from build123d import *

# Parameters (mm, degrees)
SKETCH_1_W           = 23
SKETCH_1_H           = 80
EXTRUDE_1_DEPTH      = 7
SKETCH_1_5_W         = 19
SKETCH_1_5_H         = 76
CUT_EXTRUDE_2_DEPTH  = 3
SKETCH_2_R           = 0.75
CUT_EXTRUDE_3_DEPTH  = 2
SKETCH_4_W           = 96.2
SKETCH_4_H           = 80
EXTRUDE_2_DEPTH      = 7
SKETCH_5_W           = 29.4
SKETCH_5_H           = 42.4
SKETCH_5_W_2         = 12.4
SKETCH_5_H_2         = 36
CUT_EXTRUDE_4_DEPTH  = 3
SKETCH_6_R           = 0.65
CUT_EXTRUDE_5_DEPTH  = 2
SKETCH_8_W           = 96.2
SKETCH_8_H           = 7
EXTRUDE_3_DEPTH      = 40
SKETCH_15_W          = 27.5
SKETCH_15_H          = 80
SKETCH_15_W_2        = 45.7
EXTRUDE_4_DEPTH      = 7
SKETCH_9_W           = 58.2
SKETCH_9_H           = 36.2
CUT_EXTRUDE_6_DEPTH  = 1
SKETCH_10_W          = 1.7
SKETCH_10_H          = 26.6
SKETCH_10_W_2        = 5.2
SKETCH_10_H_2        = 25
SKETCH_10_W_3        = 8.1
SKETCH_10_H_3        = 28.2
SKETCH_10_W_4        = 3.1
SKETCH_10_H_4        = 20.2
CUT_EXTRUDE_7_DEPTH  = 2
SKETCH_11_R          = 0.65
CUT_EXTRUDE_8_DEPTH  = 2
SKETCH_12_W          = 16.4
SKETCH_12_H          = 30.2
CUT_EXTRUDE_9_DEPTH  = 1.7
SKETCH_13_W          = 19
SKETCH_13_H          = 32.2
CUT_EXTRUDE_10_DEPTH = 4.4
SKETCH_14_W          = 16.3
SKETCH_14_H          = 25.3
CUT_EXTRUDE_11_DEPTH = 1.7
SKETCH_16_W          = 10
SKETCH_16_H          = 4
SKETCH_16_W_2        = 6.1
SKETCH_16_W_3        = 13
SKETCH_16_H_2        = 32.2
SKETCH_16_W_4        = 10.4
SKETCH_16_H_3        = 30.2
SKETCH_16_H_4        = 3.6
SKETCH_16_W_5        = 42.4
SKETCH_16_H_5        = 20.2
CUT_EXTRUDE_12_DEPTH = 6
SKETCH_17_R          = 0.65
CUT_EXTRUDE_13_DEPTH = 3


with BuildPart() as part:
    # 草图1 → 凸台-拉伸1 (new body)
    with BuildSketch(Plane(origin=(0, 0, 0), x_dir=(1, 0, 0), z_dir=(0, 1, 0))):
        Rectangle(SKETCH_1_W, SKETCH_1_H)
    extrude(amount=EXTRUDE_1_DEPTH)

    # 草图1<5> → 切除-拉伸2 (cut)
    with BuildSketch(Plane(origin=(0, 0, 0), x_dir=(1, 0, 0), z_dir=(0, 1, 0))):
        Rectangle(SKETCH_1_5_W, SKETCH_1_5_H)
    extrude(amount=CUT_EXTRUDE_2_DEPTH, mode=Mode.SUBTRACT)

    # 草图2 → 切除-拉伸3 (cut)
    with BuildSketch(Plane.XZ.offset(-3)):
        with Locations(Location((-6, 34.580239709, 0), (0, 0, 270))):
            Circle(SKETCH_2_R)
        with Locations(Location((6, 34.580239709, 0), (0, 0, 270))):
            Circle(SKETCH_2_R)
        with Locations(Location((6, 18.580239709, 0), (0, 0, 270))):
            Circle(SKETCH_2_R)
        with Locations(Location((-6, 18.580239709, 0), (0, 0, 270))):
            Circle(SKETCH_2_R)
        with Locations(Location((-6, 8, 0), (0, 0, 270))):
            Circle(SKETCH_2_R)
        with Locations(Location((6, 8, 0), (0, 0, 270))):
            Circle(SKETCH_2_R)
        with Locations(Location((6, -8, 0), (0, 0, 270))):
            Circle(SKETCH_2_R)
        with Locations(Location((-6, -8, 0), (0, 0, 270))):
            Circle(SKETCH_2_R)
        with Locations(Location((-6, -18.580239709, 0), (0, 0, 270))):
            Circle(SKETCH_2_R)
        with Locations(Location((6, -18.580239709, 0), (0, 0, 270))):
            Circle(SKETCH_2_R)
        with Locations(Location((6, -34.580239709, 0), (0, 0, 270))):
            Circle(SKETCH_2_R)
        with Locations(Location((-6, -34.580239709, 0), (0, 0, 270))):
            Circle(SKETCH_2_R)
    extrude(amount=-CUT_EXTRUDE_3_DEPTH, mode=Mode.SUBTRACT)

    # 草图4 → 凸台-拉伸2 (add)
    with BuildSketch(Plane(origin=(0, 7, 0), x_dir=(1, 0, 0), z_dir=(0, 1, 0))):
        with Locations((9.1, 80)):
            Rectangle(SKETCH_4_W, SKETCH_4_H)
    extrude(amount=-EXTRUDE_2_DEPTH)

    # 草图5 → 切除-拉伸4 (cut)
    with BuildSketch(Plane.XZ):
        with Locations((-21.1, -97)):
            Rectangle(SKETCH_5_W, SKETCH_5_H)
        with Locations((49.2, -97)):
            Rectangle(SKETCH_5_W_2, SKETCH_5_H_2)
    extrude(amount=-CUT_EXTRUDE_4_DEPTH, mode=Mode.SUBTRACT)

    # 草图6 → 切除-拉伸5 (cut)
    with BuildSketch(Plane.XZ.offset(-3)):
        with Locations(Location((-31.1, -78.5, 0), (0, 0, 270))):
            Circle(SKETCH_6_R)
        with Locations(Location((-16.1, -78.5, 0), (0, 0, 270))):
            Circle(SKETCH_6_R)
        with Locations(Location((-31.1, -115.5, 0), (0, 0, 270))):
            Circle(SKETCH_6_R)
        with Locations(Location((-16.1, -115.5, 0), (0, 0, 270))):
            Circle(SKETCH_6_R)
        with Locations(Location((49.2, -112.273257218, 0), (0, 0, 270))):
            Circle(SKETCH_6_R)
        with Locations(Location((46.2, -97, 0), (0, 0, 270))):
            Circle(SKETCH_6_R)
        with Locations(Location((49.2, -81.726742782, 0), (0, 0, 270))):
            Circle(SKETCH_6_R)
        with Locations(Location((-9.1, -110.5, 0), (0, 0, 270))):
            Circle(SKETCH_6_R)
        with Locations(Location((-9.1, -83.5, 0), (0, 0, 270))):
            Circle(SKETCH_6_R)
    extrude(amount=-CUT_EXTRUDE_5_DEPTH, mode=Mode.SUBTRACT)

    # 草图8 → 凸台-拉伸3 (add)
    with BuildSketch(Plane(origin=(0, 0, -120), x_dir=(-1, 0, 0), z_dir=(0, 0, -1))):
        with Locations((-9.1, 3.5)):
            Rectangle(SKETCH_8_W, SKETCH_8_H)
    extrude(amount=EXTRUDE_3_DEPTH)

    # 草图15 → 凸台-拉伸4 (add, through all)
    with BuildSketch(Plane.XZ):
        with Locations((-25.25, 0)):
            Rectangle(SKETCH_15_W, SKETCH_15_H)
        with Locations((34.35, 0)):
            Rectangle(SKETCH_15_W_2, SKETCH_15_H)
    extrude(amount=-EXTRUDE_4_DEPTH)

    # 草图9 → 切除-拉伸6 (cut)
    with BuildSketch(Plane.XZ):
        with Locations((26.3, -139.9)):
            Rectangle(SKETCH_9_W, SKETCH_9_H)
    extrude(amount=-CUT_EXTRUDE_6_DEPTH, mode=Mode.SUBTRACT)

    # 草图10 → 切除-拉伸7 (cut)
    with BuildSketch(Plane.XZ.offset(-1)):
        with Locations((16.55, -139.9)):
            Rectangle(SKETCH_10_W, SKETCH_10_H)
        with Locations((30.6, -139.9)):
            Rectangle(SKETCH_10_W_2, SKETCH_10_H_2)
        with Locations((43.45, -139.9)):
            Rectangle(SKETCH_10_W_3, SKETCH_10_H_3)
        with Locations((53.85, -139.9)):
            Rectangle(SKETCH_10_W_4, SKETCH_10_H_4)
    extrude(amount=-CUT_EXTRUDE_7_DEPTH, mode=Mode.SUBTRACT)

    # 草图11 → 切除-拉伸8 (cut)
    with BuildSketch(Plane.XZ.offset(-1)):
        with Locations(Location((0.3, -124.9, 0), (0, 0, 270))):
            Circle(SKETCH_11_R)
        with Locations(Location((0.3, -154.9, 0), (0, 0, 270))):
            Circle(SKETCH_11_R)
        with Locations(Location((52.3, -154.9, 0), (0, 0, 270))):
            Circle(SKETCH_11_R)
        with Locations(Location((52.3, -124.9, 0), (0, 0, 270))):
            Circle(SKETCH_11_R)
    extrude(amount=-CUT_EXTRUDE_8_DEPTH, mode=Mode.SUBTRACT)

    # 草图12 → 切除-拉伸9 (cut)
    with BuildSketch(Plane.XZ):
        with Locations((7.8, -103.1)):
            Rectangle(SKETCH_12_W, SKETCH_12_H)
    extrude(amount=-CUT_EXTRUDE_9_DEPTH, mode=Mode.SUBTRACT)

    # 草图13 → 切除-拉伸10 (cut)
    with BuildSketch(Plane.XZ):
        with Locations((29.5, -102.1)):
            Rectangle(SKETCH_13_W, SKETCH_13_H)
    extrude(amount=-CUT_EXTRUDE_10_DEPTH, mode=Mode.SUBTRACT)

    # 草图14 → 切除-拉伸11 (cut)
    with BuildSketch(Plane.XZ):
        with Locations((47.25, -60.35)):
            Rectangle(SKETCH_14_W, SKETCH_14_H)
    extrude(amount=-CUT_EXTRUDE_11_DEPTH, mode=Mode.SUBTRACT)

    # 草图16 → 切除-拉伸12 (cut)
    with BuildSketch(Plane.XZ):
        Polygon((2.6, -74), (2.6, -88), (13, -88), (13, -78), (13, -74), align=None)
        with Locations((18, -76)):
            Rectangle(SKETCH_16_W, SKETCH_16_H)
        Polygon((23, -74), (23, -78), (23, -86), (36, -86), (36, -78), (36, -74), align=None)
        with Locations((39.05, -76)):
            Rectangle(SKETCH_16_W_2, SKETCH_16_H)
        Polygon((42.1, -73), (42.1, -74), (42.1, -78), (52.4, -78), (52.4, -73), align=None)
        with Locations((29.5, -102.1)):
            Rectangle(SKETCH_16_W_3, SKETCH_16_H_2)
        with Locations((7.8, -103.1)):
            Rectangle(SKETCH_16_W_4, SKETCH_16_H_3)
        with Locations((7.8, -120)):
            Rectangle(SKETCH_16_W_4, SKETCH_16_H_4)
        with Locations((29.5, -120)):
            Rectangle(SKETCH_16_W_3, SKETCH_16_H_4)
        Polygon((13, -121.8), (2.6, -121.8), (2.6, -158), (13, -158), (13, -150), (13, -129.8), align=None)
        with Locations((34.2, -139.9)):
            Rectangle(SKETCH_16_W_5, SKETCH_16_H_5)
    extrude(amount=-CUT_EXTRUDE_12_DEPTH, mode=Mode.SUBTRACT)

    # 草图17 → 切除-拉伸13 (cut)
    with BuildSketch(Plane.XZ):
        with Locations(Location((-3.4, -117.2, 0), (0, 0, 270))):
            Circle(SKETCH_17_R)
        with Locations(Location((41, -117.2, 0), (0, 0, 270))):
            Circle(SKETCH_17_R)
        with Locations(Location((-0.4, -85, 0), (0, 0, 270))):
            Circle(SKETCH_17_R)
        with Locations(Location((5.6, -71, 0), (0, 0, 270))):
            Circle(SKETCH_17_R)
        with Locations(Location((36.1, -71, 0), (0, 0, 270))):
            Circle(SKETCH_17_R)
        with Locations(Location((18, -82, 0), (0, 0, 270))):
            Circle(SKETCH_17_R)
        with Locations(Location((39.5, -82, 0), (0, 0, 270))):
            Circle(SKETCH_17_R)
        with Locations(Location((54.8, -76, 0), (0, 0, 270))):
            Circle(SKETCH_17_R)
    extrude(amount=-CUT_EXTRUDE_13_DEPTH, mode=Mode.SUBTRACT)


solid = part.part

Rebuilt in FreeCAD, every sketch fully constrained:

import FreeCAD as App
import Part
import Sketcher
from FreeCAD import Vector


def add_polygon(sketch, points):
    """Adds a closed chain of lines whose ends are joined by coincident constraints."""
    first, n = sketch.GeometryCount, len(points)
    for a, b in zip(points, points[1:] + points[:1]):
        sketch.addGeometry(Part.LineSegment(App.Vector(*a, 0), App.Vector(*b, 0)), False)
    for i in range(n):
        sketch.addConstraint(Sketcher.Constraint("Coincident", first + i, 2, first + (i + 1) % n, 1))

doc = App.newDocument("Part")
body = doc.addObject("PartDesign::Body", "Body")

# Sketch on XZ plane
sketch1 = doc.addObject("Sketcher::SketchObject", "Sketch")
body.addObject(sketch1)
sketch1.AttachmentSupport = (doc.XZ_Plane, [""])
sketch1.MapMode = "FlatFace"
add_polygon(sketch1, [(-12, -40), (-12, 40), (12, 40), (12, -40)])  # lines 0-3
sketch1.addConstraint(Sketcher.Constraint("Vertical", 0))
sketch1.addConstraint(Sketcher.Constraint("Horizontal", 1))
sketch1.addConstraint(Sketcher.Constraint("Vertical", 2))
sketch1.addConstraint(Sketcher.Constraint("Horizontal", 3))
sketch1.addConstraint(Sketcher.Constraint("Symmetric", 0, 2, 2, 2, -1, 1))
sketch1.addConstraint(Sketcher.Constraint("DistanceX", 1, 1, 1, 2, 23.0))
sketch1.addConstraint(Sketcher.Constraint("DistanceY", 0, 1, 0, 2, 80.0))
pad1 = doc.addObject("PartDesign::Pad", "Pad")
body.addObject(pad1)
pad1.Profile = sketch1
pad1.Length = 7
pad1.Reversed = True

# Sketch on XZ plane
sketch2 = doc.addObject("Sketcher::SketchObject", "Sketch001")
body.addObject(sketch2)
sketch2.AttachmentSupport = (doc.XZ_Plane, [""])
sketch2.MapMode = "FlatFace"
add_polygon(sketch2, [(-10, -38), (-10, 38), (10, 38), (10, -38)])  # lines 0-3
sketch2.addConstraint(Sketcher.Constraint("Vertical", 0))
sketch2.addConstraint(Sketcher.Constraint("Horizontal", 1))
sketch2.addConstraint(Sketcher.Constraint("Vertical", 2))
sketch2.addConstraint(Sketcher.Constraint("Horizontal", 3))
sketch2.addConstraint(Sketcher.Constraint("Symmetric", 0, 2, 2, 2, -1, 1))
sketch2.addConstraint(Sketcher.Constraint("DistanceX", 1, 1, 1, 2, 19.0))
sketch2.addConstraint(Sketcher.Constraint("DistanceY", 0, 1, 0, 2, 76.0))
pocket1 = doc.addObject("PartDesign::Pocket", "Pocket")
body.addObject(pocket1)
pocket1.Profile = sketch2
pocket1.Length = 3

# Sketch on XZ plane
sketch3 = doc.addObject("Sketcher::SketchObject", "Sketch002")
body.addObject(sketch3)
sketch3.AttachmentSupport = (doc.XZ_Plane, [""])
sketch3.MapMode = "FlatFace"
sketch3.AttachmentOffset = App.Placement(Vector(0, 0, -3), App.Rotation())
sketch3.addGeometry(Part.Circle(Vector(-6, 34.6, 0), Vector(0, 0, 1), 0.8), False)
sketch3.addGeometry(Part.Circle(Vector(6, 34.6, 0), Vector(0, 0, 1), 0.8), False)
sketch3.addGeometry(Part.Circle(Vector(6, 18.6, 0), Vector(0, 0, 1), 0.8), False)
sketch3.addGeometry(Part.Circle(Vector(-6, 18.6, 0), Vector(0, 0, 1), 0.8), False)
sketch3.addGeometry(Part.Circle(Vector(-6, 8, 0), Vector(0, 0, 1), 0.8), False)
sketch3.addGeometry(Part.Circle(Vector(6, 8, 0), Vector(0, 0, 1), 0.8), False)
sketch3.addGeometry(Part.Circle(Vector(6, -8, 0), Vector(0, 0, 1), 0.8), False)
sketch3.addGeometry(Part.Circle(Vector(-6, -8, 0), Vector(0, 0, 1), 0.8), False)
sketch3.addGeometry(Part.Circle(Vector(-6, -18.6, 0), Vector(0, 0, 1), 0.8), False)
sketch3.addGeometry(Part.Circle(Vector(6, -18.6, 0), Vector(0, 0, 1), 0.8), False)
sketch3.addGeometry(Part.Circle(Vector(6, -34.6, 0), Vector(0, 0, 1), 0.8), False)
sketch3.addGeometry(Part.Circle(Vector(-6, -34.6, 0), Vector(0, 0, 1), 0.8), False)
sketch3.addConstraint(Sketcher.Constraint("Equal", 0, 1))
sketch3.addConstraint(Sketcher.Constraint("Equal", 1, 2))
sketch3.addConstraint(Sketcher.Constraint("Equal", 2, 3))
sketch3.addConstraint(Sketcher.Constraint("Equal", 3, 4))
sketch3.addConstraint(Sketcher.Constraint("Equal", 4, 5))
sketch3.addConstraint(Sketcher.Constraint("Equal", 5, 6))
sketch3.addConstraint(Sketcher.Constraint("Equal", 6, 7))
sketch3.addConstraint(Sketcher.Constraint("Equal", 7, 8))
sketch3.addConstraint(Sketcher.Constraint("Equal", 8, 9))
sketch3.addConstraint(Sketcher.Constraint("Equal", 9, 10))
sketch3.addConstraint(Sketcher.Constraint("Equal", 10, 11))
sketch3.addConstraint(Sketcher.Constraint("Symmetric", 4, 3, 6, 3, -1, 1))
sketch3.addConstraint(Sketcher.Constraint("Symmetric", 5, 3, 7, 3, -1, 1))
sketch3.addConstraint(Sketcher.Constraint("Symmetric", 2, 3, 8, 3, -1, 1))
sketch3.addConstraint(Sketcher.Constraint("Symmetric", 3, 3, 9, 3, -1, 1))
sketch3.addConstraint(Sketcher.Constraint("Symmetric", 0, 3, 10, 3, -1, 1))
sketch3.addConstraint(Sketcher.Constraint("Symmetric", 1, 3, 11, 3, -1, 1))
sketch3.addConstraint(Sketcher.Constraint("Symmetric", 0, 3, 1, 3, -2))
sketch3.addConstraint(Sketcher.Constraint("Symmetric", 2, 3, 3, 3, -2))
sketch3.addConstraint(Sketcher.Constraint("Symmetric", 4, 3, 5, 3, -2))
sketch3.addConstraint(Sketcher.Constraint("Vertical", 1, 3, 2, 3))
sketch3.addConstraint(Sketcher.Constraint("Vertical", 3, 3, 4, 3))
sketch3.addConstraint(Sketcher.Constraint("Diameter", 0, 1.5))
sketch3.addConstraint(Sketcher.Constraint("DistanceX", 0, 3, -1, 1, 6.0))
sketch3.addConstraint(Sketcher.Constraint("DistanceY", -1, 1, 4, 3, 8.0))
sketch3.addConstraint(Sketcher.Constraint("DistanceY", 2, 3, 1, 3, 16.0))
sketch3.addConstraint(Sketcher.Constraint("DistanceY", -1, 1, 0, 3, 34.58024))
pocket2 = doc.addObject("PartDesign::Pocket", "Pocket001")
body.addObject(pocket2)
pocket2.Profile = sketch3
pocket2.Length = 2

# Sketch on XZ plane
sketch4 = doc.addObject("Sketcher::SketchObject", "Sketch003")
body.addObject(sketch4)
sketch4.AttachmentSupport = (doc.XZ_Plane, [""])
sketch4.MapMode = "FlatFace"
sketch4.AttachmentOffset = App.Placement(Vector(0, 0, -7), App.Rotation())
add_polygon(sketch4, [(-39, -120), (-39, -40), (57, -40), (57, -120)])  # lines 0-3
sketch4.addConstraint(Sketcher.Constraint("Vertical", 0))
sketch4.addConstraint(Sketcher.Constraint("Horizontal", 1))
sketch4.addConstraint(Sketcher.Constraint("Vertical", 2))
sketch4.addConstraint(Sketcher.Constraint("Horizontal", 3))
sketch4.addConstraint(Sketcher.Constraint("DistanceY", 0, 1, 0, 2, 80.0))
sketch4.addConstraint(Sketcher.Constraint("DistanceX", 1, 1, 1, 2, 96.2))
sketch4.addConstraint(Sketcher.Constraint("DistanceX", 0, 2, -1, 1, 39.0))
sketch4.addConstraint(Sketcher.Constraint("DistanceY", 0, 2, -1, 1, 40.0))
pad2 = doc.addObject("PartDesign::Pad", "Pad001")
body.addObject(pad2)
pad2.Profile = sketch4
pad2.Length = 7

# Sketch on XZ plane
sketch5 = doc.addObject("Sketcher::SketchObject", "Sketch004")
body.addObject(sketch5)
sketch5.AttachmentSupport = (doc.XZ_Plane, [""])
sketch5.MapMode = "FlatFace"
add_polygon(sketch5, [(-36, -76), (-36, -118), (-6, -118), (-6, -76)])  # lines 0-3
add_polygon(sketch5, [(43, -79), (43, -115), (55, -115), (55, -79)])  # lines 4-7
sketch5.addConstraint(Sketcher.Constraint("Vertical", 0))
sketch5.addConstraint(Sketcher.Constraint("Horizontal", 1))
sketch5.addConstraint(Sketcher.Constraint("Vertical", 2))
sketch5.addConstraint(Sketcher.Constraint("Horizontal", 3))
sketch5.addConstraint(Sketcher.Constraint("Vertical", 4))
sketch5.addConstraint(Sketcher.Constraint("Horizontal", 5))
sketch5.addConstraint(Sketcher.Constraint("Vertical", 6))
sketch5.addConstraint(Sketcher.Constraint("Horizontal", 7))
sketch5.addConstraint(Sketcher.Constraint("DistanceY", 4, 2, 4, 1, 36.0))
sketch5.addConstraint(Sketcher.Constraint("DistanceX", 1, 1, 1, 2, 29.4))
sketch5.addConstraint(Sketcher.Constraint("DistanceX", 5, 1, 5, 2, 12.4))
sketch5.addConstraint(Sketcher.Constraint("DistanceY", 0, 2, 0, 1, 42.4))
sketch5.addConstraint(Sketcher.Constraint("DistanceX", -1, 1, 4, 2, 43.0))
sketch5.addConstraint(Sketcher.Constraint("DistanceY", 4, 2, -1, 1, 115.0))
sketch5.addConstraint(Sketcher.Constraint("DistanceX", 0, 2, -1, 1, 35.8))
sketch5.addConstraint(Sketcher.Constraint("DistanceY", 0, 2, -1, 1, 118.2))
pocket3 = doc.addObject("PartDesign::Pocket", "Pocket002")
body.addObject(pocket3)
pocket3.Profile = sketch5
pocket3.Length = 3

# Sketch on XZ plane
sketch6 = doc.addObject("Sketcher::SketchObject", "Sketch005")
body.addObject(sketch6)
sketch6.AttachmentSupport = (doc.XZ_Plane, [""])
sketch6.MapMode = "FlatFace"
sketch6.AttachmentOffset = App.Placement(Vector(0, 0, -3), App.Rotation())
sketch6.addGeometry(Part.Circle(Vector(-31.1, -78.5, 0), Vector(0, 0, 1), 0.7), False)
sketch6.addGeometry(Part.Circle(Vector(-16.1, -78.5, 0), Vector(0, 0, 1), 0.7), False)
sketch6.addGeometry(Part.Circle(Vector(-31.1, -115.5, 0), Vector(0, 0, 1), 0.7), False)
sketch6.addGeometry(Part.Circle(Vector(-16.1, -115.5, 0), Vector(0, 0, 1), 0.7), False)
sketch6.addGeometry(Part.Circle(Vector(49.2, -112.3, 0), Vector(0, 0, 1), 0.7), False)
sketch6.addGeometry(Part.Circle(Vector(46.2, -97, 0), Vector(0, 0, 1), 0.7), False)
sketch6.addGeometry(Part.Circle(Vector(49.2, -81.7, 0), Vector(0, 0, 1), 0.7), False)
sketch6.addGeometry(Part.Circle(Vector(-9.1, -110.5, 0), Vector(0, 0, 1), 0.7), False)
sketch6.addGeometry(Part.Circle(Vector(-9.1, -83.5, 0), Vector(0, 0, 1), 0.7), False)
sketch6.addConstraint(Sketcher.Constraint("Equal", 0, 1))
sketch6.addConstraint(Sketcher.Constraint("Equal", 1, 2))
sketch6.addConstraint(Sketcher.Constraint("Equal", 2, 3))
sketch6.addConstraint(Sketcher.Constraint("Equal", 3, 4))
sketch6.addConstraint(Sketcher.Constraint("Equal", 4, 5))
sketch6.addConstraint(Sketcher.Constraint("Equal", 5, 6))
sketch6.addConstraint(Sketcher.Constraint("Equal", 6, 7))
sketch6.addConstraint(Sketcher.Constraint("Equal", 7, 8))
sketch6.addConstraint(Sketcher.Constraint("Horizontal", 0, 3, 1, 3))
sketch6.addConstraint(Sketcher.Constraint("Horizontal", 2, 3, 3, 3))
sketch6.addConstraint(Sketcher.Constraint("Vertical", 0, 3, 2, 3))
sketch6.addConstraint(Sketcher.Constraint("Vertical", 1, 3, 3, 3))
sketch6.addConstraint(Sketcher.Constraint("Vertical", 4, 3, 6, 3))
sketch6.addConstraint(Sketcher.Constraint("Vertical", 7, 3, 8, 3))
sketch6.addConstraint(Sketcher.Constraint("Diameter", 0, 1.3))
sketch6.addConstraint(Sketcher.Constraint("DistanceY", 5, 3, -1, 1, 97.0))
sketch6.addConstraint(Sketcher.Constraint("DistanceX", 0, 3, 1, 3, 15.0))
sketch6.addConstraint(Sketcher.Constraint("DistanceY", 2, 3, 0, 3, 37.0))
sketch6.addConstraint(Sketcher.Constraint("DistanceX", 5, 3, 4, 3, 3.0))
sketch6.addConstraint(Sketcher.Constraint("DistanceX", 3, 3, 7, 3, 7.0))
sketch6.addConstraint(Sketcher.Constraint("DistanceY", 3, 3, 7, 3, 5.0))
sketch6.addConstraint(Sketcher.Constraint("DistanceY", 8, 3, 1, 3, 5.0))
sketch6.addConstraint(Sketcher.Constraint("DistanceX", 0, 3, -1, 1, 31.1))
sketch6.addConstraint(Sketcher.Constraint("DistanceY", 0, 3, -1, 1, 78.5))
sketch6.addConstraint(Sketcher.Constraint("DistanceX", -1, 1, 4, 3, 49.2))
sketch6.addConstraint(Sketcher.Constraint("DistanceY", 4, 3, -1, 1, 112.273257))
sketch6.addConstraint(Sketcher.Constraint("DistanceY", 6, 3, -1, 1, 81.726743))
pocket4 = doc.addObject("PartDesign::Pocket", "Pocket003")
body.addObject(pocket4)
pocket4.Profile = sketch6
pocket4.Length = 2

# Sketch on XY plane
sketch7 = doc.addObject("Sketcher::SketchObject", "Sketch006")
body.addObject(sketch7)
sketch7.AttachmentSupport = (doc.XY_Plane, [""])
sketch7.MapMode = "FlatFace"
sketch7.AttachmentOffset = App.Placement(Vector(0, 0, -120), App.Rotation())
add_polygon(sketch7, [(57, 7), (57, 0), (-39, 0), (-39, 7)])  # lines 0-3
sketch7.addConstraint(Sketcher.Constraint("Vertical", 0))
sketch7.addConstraint(Sketcher.Constraint("Horizontal", 1))
sketch7.addConstraint(Sketcher.Constraint("Vertical", 2))
sketch7.addConstraint(Sketcher.Constraint("Horizontal", 3))
sketch7.addConstraint(Sketcher.Constraint("PointOnObject", 0, 2, -1))
sketch7.addConstraint(Sketcher.Constraint("DistanceY", 0, 2, 0, 1, 7.0))
sketch7.addConstraint(Sketcher.Constraint("DistanceX", 1, 2, 1, 1, 96.2))
sketch7.addConstraint(Sketcher.Constraint("DistanceX", 1, 2, -1, 1, 39.0))
pad3 = doc.addObject("PartDesign::Pad", "Pad002")
body.addObject(pad3)
pad3.Profile = sketch7
pad3.Length = 40
pad3.Reversed = True

# Sketch on XZ plane
sketch8 = doc.addObject("Sketcher::SketchObject", "Sketch007")
body.addObject(sketch8)
sketch8.AttachmentSupport = (doc.XZ_Plane, [""])
sketch8.MapMode = "FlatFace"
add_polygon(sketch8, [(-39, 40), (-39, -40), (-12, -40), (-12, 40)])  # lines 0-3
add_polygon(sketch8, [(12, 40), (12, -40), (57, -40), (57, 40)])  # lines 4-7
sketch8.addConstraint(Sketcher.Constraint("Vertical", 0))
sketch8.addConstraint(Sketcher.Constraint("Horizontal", 1))
sketch8.addConstraint(Sketcher.Constraint("Vertical", 2))
sketch8.addConstraint(Sketcher.Constraint("Horizontal", 3))
sketch8.addConstraint(Sketcher.Constraint("Vertical", 4))
sketch8.addConstraint(Sketcher.Constraint("Horizontal", 5))
sketch8.addConstraint(Sketcher.Constraint("Vertical", 6))
sketch8.addConstraint(Sketcher.Constraint("Horizontal", 7))
sketch8.addConstraint(Sketcher.Constraint("Symmetric", 2, 2, 4, 2, -1, 1))
sketch8.addConstraint(Sketcher.Constraint("Horizontal", 1, 2, 4, 2))
sketch8.addConstraint(Sketcher.Constraint("Horizontal", 3, 2, 6, 2))
sketch8.addConstraint(Sketcher.Constraint("DistanceY", 0, 2, 0, 1, 80.0))
sketch8.addConstraint(Sketcher.Constraint("DistanceX", 1, 1, 1, 2, 27.5))
sketch8.addConstraint(Sketcher.Constraint("DistanceX", 5, 1, 5, 2, 45.7))
sketch8.addConstraint(Sketcher.Constraint("DistanceX", 0, 2, -1, 1, 39.0))
pad4 = doc.addObject("PartDesign::Pad", "Pad003")
body.addObject(pad4)
pad4.Profile = sketch8
pad4.Length = 7
pad4.Reversed = True

# Sketch on XZ plane
sketch9 = doc.addObject("Sketcher::SketchObject", "Sketch008")
body.addObject(sketch9)
sketch9.AttachmentSupport = (doc.XZ_Plane, [""])
sketch9.MapMode = "FlatFace"
add_polygon(sketch9, [(-3, -122), (-3, -158), (55, -158), (55, -122)])  # lines 0-3
sketch9.addConstraint(Sketcher.Constraint("Vertical", 0))
sketch9.addConstraint(Sketcher.Constraint("Horizontal", 1))
sketch9.addConstraint(Sketcher.Constraint("Vertical", 2))
sketch9.addConstraint(Sketcher.Constraint("Horizontal", 3))
sketch9.addConstraint(Sketcher.Constraint("DistanceX", 1, 1, 1, 2, 58.2))
sketch9.addConstraint(Sketcher.Constraint("DistanceY", 0, 2, 0, 1, 36.2))
sketch9.addConstraint(Sketcher.Constraint("DistanceY", 0, 2, -1, 1, 158.0))
sketch9.addConstraint(Sketcher.Constraint("DistanceX", 0, 2, -1, 1, 2.8))
pocket5 = doc.addObject("PartDesign::Pocket", "Pocket004")
body.addObject(pocket5)
pocket5.Profile = sketch9
pocket5.Length = 1

# Sketch on XZ plane
sketch10 = doc.addObject("Sketcher::SketchObject", "Sketch009")
body.addObject(sketch10)
sketch10.AttachmentSupport = (doc.XZ_Plane, [""])
sketch10.MapMode = "FlatFace"
sketch10.AttachmentOffset = App.Placement(Vector(0, 0, -1), App.Rotation())
add_polygon(sketch10, [(15.7, -126.6), (15.7, -153.2), (17.4, -153.2), (17.4, -126.6)])  # lines 0-3
add_polygon(sketch10, [(28, -127.4), (28, -152.4), (33.2, -152.4), (33.2, -127.4)])  # lines 4-7
add_polygon(sketch10, [(39.4, -125.8), (39.4, -154), (47.5, -154), (47.5, -125.8)])  # lines 8-11
add_polygon(sketch10, [(52.3, -129.8), (52.3, -150), (55.4, -150), (55.4, -129.8)])  # lines 12-15
sketch10.addConstraint(Sketcher.Constraint("Vertical", 0))
sketch10.addConstraint(Sketcher.Constraint("Horizontal", 1))
sketch10.addConstraint(Sketcher.Constraint("Vertical", 2))
sketch10.addConstraint(Sketcher.Constraint("Horizontal", 3))
sketch10.addConstraint(Sketcher.Constraint("Vertical", 4))
sketch10.addConstraint(Sketcher.Constraint("Horizontal", 5))
sketch10.addConstraint(Sketcher.Constraint("Vertical", 6))
sketch10.addConstraint(Sketcher.Constraint("Horizontal", 7))
sketch10.addConstraint(Sketcher.Constraint("Vertical", 8))
sketch10.addConstraint(Sketcher.Constraint("Horizontal", 9))
sketch10.addConstraint(Sketcher.Constraint("Vertical", 10))
sketch10.addConstraint(Sketcher.Constraint("Horizontal", 11))
sketch10.addConstraint(Sketcher.Constraint("Vertical", 12))
sketch10.addConstraint(Sketcher.Constraint("Horizontal", 13))
sketch10.addConstraint(Sketcher.Constraint("Vertical", 14))
sketch10.addConstraint(Sketcher.Constraint("Horizontal", 15))
sketch10.addConstraint(Sketcher.Constraint("DistanceY", 4, 2, 4, 1, 25.0))
sketch10.addConstraint(Sketcher.Constraint("DistanceX", 1, 1, 1, 2, 1.7))
sketch10.addConstraint(Sketcher.Constraint("DistanceX", 5, 1, 5, 2, 5.2))
sketch10.addConstraint(Sketcher.Constraint("DistanceX", 9, 1, 9, 2, 8.1))
sketch10.addConstraint(Sketcher.Constraint("DistanceX", 13, 1, 13, 2, 3.1))
sketch10.addConstraint(Sketcher.Constraint("DistanceY", 0, 2, 0, 1, 26.6))
sketch10.addConstraint(Sketcher.Constraint("DistanceY", 8, 2, 8, 1, 28.2))
sketch10.addConstraint(Sketcher.Constraint("DistanceY", 12, 2, 12, 1, 20.2))
sketch10.addConstraint(Sketcher.Constraint("DistanceX", -1, 1, 4, 2, 28.0))
sketch10.addConstraint(Sketcher.Constraint("DistanceY", 8, 2, -1, 1, 154.0))
sketch10.addConstraint(Sketcher.Constraint("DistanceY", 12, 2, -1, 1, 150.0))
sketch10.addConstraint(Sketcher.Constraint("DistanceX", 1, 2, 8, 2, 22.0))
sketch10.addConstraint(Sketcher.Constraint("DistanceX", 8, 2, 13, 2, 16.0))
sketch10.addConstraint(Sketcher.Constraint("DistanceX", -1, 1, 0, 2, 15.7))
sketch10.addConstraint(Sketcher.Constraint("DistanceY", 0, 2, -1, 1, 153.2))
sketch10.addConstraint(Sketcher.Constraint("DistanceY", 4, 2, -1, 1, 152.4))
pocket6 = doc.addObject("PartDesign::Pocket", "Pocket005")
body.addObject(pocket6)
pocket6.Profile = sketch10
pocket6.Length = 2

# Sketch on XZ plane
sketch11 = doc.addObject("Sketcher::SketchObject", "Sketch010")
body.addObject(sketch11)
sketch11.AttachmentSupport = (doc.XZ_Plane, [""])
sketch11.MapMode = "FlatFace"
sketch11.AttachmentOffset = App.Placement(Vector(0, 0, -1), App.Rotation())
sketch11.addGeometry(Part.Circle(Vector(0.3, -124.9, 0), Vector(0, 0, 1), 0.7), False)
sketch11.addGeometry(Part.Circle(Vector(0.3, -154.9, 0), Vector(0, 0, 1), 0.7), False)
sketch11.addGeometry(Part.Circle(Vector(52.3, -154.9, 0), Vector(0, 0, 1), 0.7), False)
sketch11.addGeometry(Part.Circle(Vector(52.3, -124.9, 0), Vector(0, 0, 1), 0.7), False)
sketch11.addConstraint(Sketcher.Constraint("Equal", 0, 1))
sketch11.addConstraint(Sketcher.Constraint("Equal", 1, 2))
sketch11.addConstraint(Sketcher.Constraint("Equal", 2, 3))
sketch11.addConstraint(Sketcher.Constraint("Horizontal", 1, 3, 2, 3))
sketch11.addConstraint(Sketcher.Constraint("Horizontal", 0, 3, 3, 3))
sketch11.addConstraint(Sketcher.Constraint("Vertical", 0, 3, 1, 3))
sketch11.addConstraint(Sketcher.Constraint("Vertical", 2, 3, 3, 3))
sketch11.addConstraint(Sketcher.Constraint("Diameter", 0, 1.3))
sketch11.addConstraint(Sketcher.Constraint("DistanceY", 1, 3, 0, 3, 30.0))
sketch11.addConstraint(Sketcher.Constraint("DistanceX", 1, 3, 2, 3, 52.0))
sketch11.addConstraint(Sketcher.Constraint("DistanceX", -1, 1, 0, 3, 0.3))
sketch11.addConstraint(Sketcher.Constraint("DistanceY", 0, 3, -1, 1, 124.9))
pocket7 = doc.addObject("PartDesign::Pocket", "Pocket006")
body.addObject(pocket7)
pocket7.Profile = sketch11
pocket7.Length = 2

# Sketch on XZ plane
sketch12 = doc.addObject("Sketcher::SketchObject", "Sketch011")
body.addObject(sketch12)
sketch12.AttachmentSupport = (doc.XZ_Plane, [""])
sketch12.MapMode = "FlatFace"
add_polygon(sketch12, [(0, -88), (0, -118), (16, -118), (16, -88)])  # lines 0-3
sketch12.addConstraint(Sketcher.Constraint("Vertical", 0))
sketch12.addConstraint(Sketcher.Constraint("Horizontal", 1))
sketch12.addConstraint(Sketcher.Constraint("Vertical", 2))
sketch12.addConstraint(Sketcher.Constraint("Horizontal", 3))
sketch12.addConstraint(Sketcher.Constraint("DistanceX", 1, 1, 1, 2, 16.4))
sketch12.addConstraint(Sketcher.Constraint("DistanceY", 0, 2, 0, 1, 30.2))
sketch12.addConstraint(Sketcher.Constraint("DistanceX", -1, 1, 1, 2, 16.0))
sketch12.addConstraint(Sketcher.Constraint("DistanceY", 2, 2, -1, 1, 88.0))
pocket8 = doc.addObject("PartDesign::Pocket", "Pocket007")
body.addObject(pocket8)
pocket8.Profile = sketch12
pocket8.Length = 1.7

# Sketch on XZ plane
sketch13 = doc.addObject("Sketcher::SketchObject", "Sketch012")
body.addObject(sketch13)
sketch13.AttachmentSupport = (doc.XZ_Plane, [""])
sketch13.MapMode = "FlatFace"
add_polygon(sketch13, [(20, -86), (20, -118), (39, -118), (39, -86)])  # lines 0-3
sketch13.addConstraint(Sketcher.Constraint("Vertical", 0))
sketch13.addConstraint(Sketcher.Constraint("Horizontal", 1))
sketch13.addConstraint(Sketcher.Constraint("Vertical", 2))
sketch13.addConstraint(Sketcher.Constraint("Horizontal", 3))
sketch13.addConstraint(Sketcher.Constraint("DistanceX", 1, 1, 1, 2, 19.0))
sketch13.addConstraint(Sketcher.Constraint("DistanceY", 0, 2, 0, 1, 32.2))
sketch13.addConstraint(Sketcher.Constraint("DistanceX", -1, 1, 0, 2, 20.0))
sketch13.addConstraint(Sketcher.Constraint("DistanceY", 2, 2, -1, 1, 86.0))
pocket9 = doc.addObject("PartDesign::Pocket", "Pocket008")
body.addObject(pocket9)
pocket9.Profile = sketch13
pocket9.Length = 4.4

# Sketch on XZ plane
sketch14 = doc.addObject("Sketcher::SketchObject", "Sketch013")
body.addObject(sketch14)
sketch14.AttachmentSupport = (doc.XZ_Plane, [""])
sketch14.MapMode = "FlatFace"
add_polygon(sketch14, [(39, -48), (39, -73), (55, -73), (55, -48)])  # lines 0-3
sketch14.addConstraint(Sketcher.Constraint("Vertical", 0))
sketch14.addConstraint(Sketcher.Constraint("Horizontal", 1))
sketch14.addConstraint(Sketcher.Constraint("Vertical", 2))
sketch14.addConstraint(Sketcher.Constraint("Horizontal", 3))
sketch14.addConstraint(Sketcher.Constraint("DistanceX", 1, 1, 1, 2, 16.3))
sketch14.addConstraint(Sketcher.Constraint("DistanceY", 0, 2, 0, 1, 25.3))
sketch14.addConstraint(Sketcher.Constraint("DistanceY", 0, 2, -1, 1, 73.0))
sketch14.addConstraint(Sketcher.Constraint("DistanceX", -1, 1, 0, 2, 39.1))
pocket10 = doc.addObject("PartDesign::Pocket", "Pocket009")
body.addObject(pocket10)
pocket10.Profile = sketch14
pocket10.Length = 1.7

# Sketch on XZ plane
sketch15 = doc.addObject("Sketcher::SketchObject", "Sketch014")
body.addObject(sketch15)
sketch15.AttachmentSupport = (doc.XZ_Plane, [""])
sketch15.MapMode = "FlatFace"
add_polygon(sketch15, [(2.6, -74), (2.6, -158), (13, -158), (13, -150), (55.4, -150), (55.4, -129.8), (13, -129.8), (13, -78), (23, -78), (23, -121.8), (36, -121.8), (36, -78), (52.4, -78), (52.4, -73), (42.1, -73), (42.1, -74)])  # lines 0-15
sketch15.addConstraint(Sketcher.Constraint("Vertical", 0))
sketch15.addConstraint(Sketcher.Constraint("Horizontal", 1))
sketch15.addConstraint(Sketcher.Constraint("Vertical", 2))
sketch15.addConstraint(Sketcher.Constraint("Horizontal", 3))
sketch15.addConstraint(Sketcher.Constraint("Vertical", 4))
sketch15.addConstraint(Sketcher.Constraint("Horizontal", 5))
sketch15.addConstraint(Sketcher.Constraint("Vertical", 6))
sketch15.addConstraint(Sketcher.Constraint("Horizontal", 7))
sketch15.addConstraint(Sketcher.Constraint("Vertical", 8))
sketch15.addConstraint(Sketcher.Constraint("Horizontal", 9))
sketch15.addConstraint(Sketcher.Constraint("Vertical", 10))
sketch15.addConstraint(Sketcher.Constraint("Horizontal", 11))
sketch15.addConstraint(Sketcher.Constraint("Vertical", 12))
sketch15.addConstraint(Sketcher.Constraint("Horizontal", 13))
sketch15.addConstraint(Sketcher.Constraint("Vertical", 14))
sketch15.addConstraint(Sketcher.Constraint("Horizontal", 15))
sketch15.addConstraint(Sketcher.Constraint("Horizontal", 7, 2, 10, 2))
sketch15.addConstraint(Sketcher.Constraint("Vertical", 2, 2, 5, 2))
sketch15.addConstraint(Sketcher.Constraint("DistanceX", 7, 1, 7, 2, 10.0))
sketch15.addConstraint(Sketcher.Constraint("DistanceX", 9, 1, 9, 2, 13.0))
sketch15.addConstraint(Sketcher.Constraint("DistanceY", 0, 2, 0, 1, 84.0))
sketch15.addConstraint(Sketcher.Constraint("DistanceY", 2, 1, 2, 2, 8.0))
sketch15.addConstraint(Sketcher.Constraint("DistanceY", 12, 1, 12, 2, 5.0))
sketch15.addConstraint(Sketcher.Constraint("DistanceY", 14, 2, 14, 1, 1.0))
sketch15.addConstraint(Sketcher.Constraint("DistanceX", 1, 1, 1, 2, 10.4))
sketch15.addConstraint(Sketcher.Constraint("DistanceX", 3, 1, 3, 2, 42.4))
sketch15.addConstraint(Sketcher.Constraint("DistanceX", 11, 1, 11, 2, 16.4))
sketch15.addConstraint(Sketcher.Constraint("DistanceX", 13, 2, 13, 1, 10.3))
sketch15.addConstraint(Sketcher.Constraint("DistanceY", 4, 1, 4, 2, 20.2))
sketch15.addConstraint(Sketcher.Constraint("DistanceY", 8, 2, 8, 1, 43.8))
sketch15.addConstraint(Sketcher.Constraint("DistanceY", 0, 2, -1, 1, 158.0))
sketch15.addConstraint(Sketcher.Constraint("DistanceX", -1, 1, 1, 2, 13.0))
pocket11 = doc.addObject("PartDesign::Pocket", "Pocket010")
body.addObject(pocket11)
pocket11.Profile = sketch15
pocket11.Length = 6

# Sketch on XZ plane
sketch16 = doc.addObject("Sketcher::SketchObject", "Sketch015")
body.addObject(sketch16)
sketch16.AttachmentSupport = (doc.XZ_Plane, [""])
sketch16.MapMode = "FlatFace"
sketch16.addGeometry(Part.Circle(Vector(-3.4, -117.2, 0), Vector(0, 0, 1), 0.7), False)
sketch16.addGeometry(Part.Circle(Vector(41, -117.2, 0), Vector(0, 0, 1), 0.7), False)
sketch16.addGeometry(Part.Circle(Vector(-0.4, -85, 0), Vector(0, 0, 1), 0.7), False)
sketch16.addGeometry(Part.Circle(Vector(5.6, -71, 0), Vector(0, 0, 1), 0.7), False)
sketch16.addGeometry(Part.Circle(Vector(36.1, -71, 0), Vector(0, 0, 1), 0.7), False)
sketch16.addGeometry(Part.Circle(Vector(18, -82, 0), Vector(0, 0, 1), 0.7), False)
sketch16.addGeometry(Part.Circle(Vector(39.5, -82, 0), Vector(0, 0, 1), 0.7), False)
sketch16.addGeometry(Part.Circle(Vector(54.8, -76, 0), Vector(0, 0, 1), 0.7), False)
sketch16.addConstraint(Sketcher.Constraint("Equal", 0, 1))
sketch16.addConstraint(Sketcher.Constraint("Equal", 1, 2))
sketch16.addConstraint(Sketcher.Constraint("Equal", 2, 3))
sketch16.addConstraint(Sketcher.Constraint("Equal", 3, 4))
sketch16.addConstraint(Sketcher.Constraint("Equal", 4, 5))
sketch16.addConstraint(Sketcher.Constraint("Equal", 5, 6))
sketch16.addConstraint(Sketcher.Constraint("Equal", 6, 7))
sketch16.addConstraint(Sketcher.Constraint("Horizontal", 0, 3, 1, 3))
sketch16.addConstraint(Sketcher.Constraint("Horizontal", 3, 3, 4, 3))
sketch16.addConstraint(Sketcher.Constraint("Horizontal", 5, 3, 6, 3))
sketch16.addConstraint(Sketcher.Constraint("Diameter", 0, 1.3))
sketch16.addConstraint(Sketcher.Constraint("DistanceX", -1, 1, 1, 3, 41.0))
sketch16.addConstraint(Sketcher.Constraint("DistanceY", 2, 3, -1, 1, 85.0))
sketch16.addConstraint(Sketcher.Constraint("DistanceY", 3, 3, -1, 1, 71.0))
sketch16.addConstraint(Sketcher.Constraint("DistanceX", -1, 1, 5, 3, 18.0))
sketch16.addConstraint(Sketcher.Constraint("DistanceY", 5, 3, -1, 1, 82.0))
sketch16.addConstraint(Sketcher.Constraint("DistanceY", 7, 3, -1, 1, 76.0))
sketch16.addConstraint(Sketcher.Constraint("DistanceX", 0, 3, 2, 3, 3.0))
sketch16.addConstraint(Sketcher.Constraint("DistanceX", 2, 3, 3, 3, 6.0))
sketch16.addConstraint(Sketcher.Constraint("DistanceX", 0, 3, -1, 1, 3.4))
sketch16.addConstraint(Sketcher.Constraint("DistanceY", 0, 3, -1, 1, 117.2))
sketch16.addConstraint(Sketcher.Constraint("DistanceX", -1, 1, 4, 3, 36.1))
sketch16.addConstraint(Sketcher.Constraint("DistanceX", -1, 1, 6, 3, 39.5))
sketch16.addConstraint(Sketcher.Constraint("DistanceX", -1, 1, 7, 3, 54.8))
pocket12 = doc.addObject("PartDesign::Pocket", "Pocket011")
body.addObject(pocket12)
pocket12.Profile = sketch16
pocket12.Length = 3

doc.recompute()
